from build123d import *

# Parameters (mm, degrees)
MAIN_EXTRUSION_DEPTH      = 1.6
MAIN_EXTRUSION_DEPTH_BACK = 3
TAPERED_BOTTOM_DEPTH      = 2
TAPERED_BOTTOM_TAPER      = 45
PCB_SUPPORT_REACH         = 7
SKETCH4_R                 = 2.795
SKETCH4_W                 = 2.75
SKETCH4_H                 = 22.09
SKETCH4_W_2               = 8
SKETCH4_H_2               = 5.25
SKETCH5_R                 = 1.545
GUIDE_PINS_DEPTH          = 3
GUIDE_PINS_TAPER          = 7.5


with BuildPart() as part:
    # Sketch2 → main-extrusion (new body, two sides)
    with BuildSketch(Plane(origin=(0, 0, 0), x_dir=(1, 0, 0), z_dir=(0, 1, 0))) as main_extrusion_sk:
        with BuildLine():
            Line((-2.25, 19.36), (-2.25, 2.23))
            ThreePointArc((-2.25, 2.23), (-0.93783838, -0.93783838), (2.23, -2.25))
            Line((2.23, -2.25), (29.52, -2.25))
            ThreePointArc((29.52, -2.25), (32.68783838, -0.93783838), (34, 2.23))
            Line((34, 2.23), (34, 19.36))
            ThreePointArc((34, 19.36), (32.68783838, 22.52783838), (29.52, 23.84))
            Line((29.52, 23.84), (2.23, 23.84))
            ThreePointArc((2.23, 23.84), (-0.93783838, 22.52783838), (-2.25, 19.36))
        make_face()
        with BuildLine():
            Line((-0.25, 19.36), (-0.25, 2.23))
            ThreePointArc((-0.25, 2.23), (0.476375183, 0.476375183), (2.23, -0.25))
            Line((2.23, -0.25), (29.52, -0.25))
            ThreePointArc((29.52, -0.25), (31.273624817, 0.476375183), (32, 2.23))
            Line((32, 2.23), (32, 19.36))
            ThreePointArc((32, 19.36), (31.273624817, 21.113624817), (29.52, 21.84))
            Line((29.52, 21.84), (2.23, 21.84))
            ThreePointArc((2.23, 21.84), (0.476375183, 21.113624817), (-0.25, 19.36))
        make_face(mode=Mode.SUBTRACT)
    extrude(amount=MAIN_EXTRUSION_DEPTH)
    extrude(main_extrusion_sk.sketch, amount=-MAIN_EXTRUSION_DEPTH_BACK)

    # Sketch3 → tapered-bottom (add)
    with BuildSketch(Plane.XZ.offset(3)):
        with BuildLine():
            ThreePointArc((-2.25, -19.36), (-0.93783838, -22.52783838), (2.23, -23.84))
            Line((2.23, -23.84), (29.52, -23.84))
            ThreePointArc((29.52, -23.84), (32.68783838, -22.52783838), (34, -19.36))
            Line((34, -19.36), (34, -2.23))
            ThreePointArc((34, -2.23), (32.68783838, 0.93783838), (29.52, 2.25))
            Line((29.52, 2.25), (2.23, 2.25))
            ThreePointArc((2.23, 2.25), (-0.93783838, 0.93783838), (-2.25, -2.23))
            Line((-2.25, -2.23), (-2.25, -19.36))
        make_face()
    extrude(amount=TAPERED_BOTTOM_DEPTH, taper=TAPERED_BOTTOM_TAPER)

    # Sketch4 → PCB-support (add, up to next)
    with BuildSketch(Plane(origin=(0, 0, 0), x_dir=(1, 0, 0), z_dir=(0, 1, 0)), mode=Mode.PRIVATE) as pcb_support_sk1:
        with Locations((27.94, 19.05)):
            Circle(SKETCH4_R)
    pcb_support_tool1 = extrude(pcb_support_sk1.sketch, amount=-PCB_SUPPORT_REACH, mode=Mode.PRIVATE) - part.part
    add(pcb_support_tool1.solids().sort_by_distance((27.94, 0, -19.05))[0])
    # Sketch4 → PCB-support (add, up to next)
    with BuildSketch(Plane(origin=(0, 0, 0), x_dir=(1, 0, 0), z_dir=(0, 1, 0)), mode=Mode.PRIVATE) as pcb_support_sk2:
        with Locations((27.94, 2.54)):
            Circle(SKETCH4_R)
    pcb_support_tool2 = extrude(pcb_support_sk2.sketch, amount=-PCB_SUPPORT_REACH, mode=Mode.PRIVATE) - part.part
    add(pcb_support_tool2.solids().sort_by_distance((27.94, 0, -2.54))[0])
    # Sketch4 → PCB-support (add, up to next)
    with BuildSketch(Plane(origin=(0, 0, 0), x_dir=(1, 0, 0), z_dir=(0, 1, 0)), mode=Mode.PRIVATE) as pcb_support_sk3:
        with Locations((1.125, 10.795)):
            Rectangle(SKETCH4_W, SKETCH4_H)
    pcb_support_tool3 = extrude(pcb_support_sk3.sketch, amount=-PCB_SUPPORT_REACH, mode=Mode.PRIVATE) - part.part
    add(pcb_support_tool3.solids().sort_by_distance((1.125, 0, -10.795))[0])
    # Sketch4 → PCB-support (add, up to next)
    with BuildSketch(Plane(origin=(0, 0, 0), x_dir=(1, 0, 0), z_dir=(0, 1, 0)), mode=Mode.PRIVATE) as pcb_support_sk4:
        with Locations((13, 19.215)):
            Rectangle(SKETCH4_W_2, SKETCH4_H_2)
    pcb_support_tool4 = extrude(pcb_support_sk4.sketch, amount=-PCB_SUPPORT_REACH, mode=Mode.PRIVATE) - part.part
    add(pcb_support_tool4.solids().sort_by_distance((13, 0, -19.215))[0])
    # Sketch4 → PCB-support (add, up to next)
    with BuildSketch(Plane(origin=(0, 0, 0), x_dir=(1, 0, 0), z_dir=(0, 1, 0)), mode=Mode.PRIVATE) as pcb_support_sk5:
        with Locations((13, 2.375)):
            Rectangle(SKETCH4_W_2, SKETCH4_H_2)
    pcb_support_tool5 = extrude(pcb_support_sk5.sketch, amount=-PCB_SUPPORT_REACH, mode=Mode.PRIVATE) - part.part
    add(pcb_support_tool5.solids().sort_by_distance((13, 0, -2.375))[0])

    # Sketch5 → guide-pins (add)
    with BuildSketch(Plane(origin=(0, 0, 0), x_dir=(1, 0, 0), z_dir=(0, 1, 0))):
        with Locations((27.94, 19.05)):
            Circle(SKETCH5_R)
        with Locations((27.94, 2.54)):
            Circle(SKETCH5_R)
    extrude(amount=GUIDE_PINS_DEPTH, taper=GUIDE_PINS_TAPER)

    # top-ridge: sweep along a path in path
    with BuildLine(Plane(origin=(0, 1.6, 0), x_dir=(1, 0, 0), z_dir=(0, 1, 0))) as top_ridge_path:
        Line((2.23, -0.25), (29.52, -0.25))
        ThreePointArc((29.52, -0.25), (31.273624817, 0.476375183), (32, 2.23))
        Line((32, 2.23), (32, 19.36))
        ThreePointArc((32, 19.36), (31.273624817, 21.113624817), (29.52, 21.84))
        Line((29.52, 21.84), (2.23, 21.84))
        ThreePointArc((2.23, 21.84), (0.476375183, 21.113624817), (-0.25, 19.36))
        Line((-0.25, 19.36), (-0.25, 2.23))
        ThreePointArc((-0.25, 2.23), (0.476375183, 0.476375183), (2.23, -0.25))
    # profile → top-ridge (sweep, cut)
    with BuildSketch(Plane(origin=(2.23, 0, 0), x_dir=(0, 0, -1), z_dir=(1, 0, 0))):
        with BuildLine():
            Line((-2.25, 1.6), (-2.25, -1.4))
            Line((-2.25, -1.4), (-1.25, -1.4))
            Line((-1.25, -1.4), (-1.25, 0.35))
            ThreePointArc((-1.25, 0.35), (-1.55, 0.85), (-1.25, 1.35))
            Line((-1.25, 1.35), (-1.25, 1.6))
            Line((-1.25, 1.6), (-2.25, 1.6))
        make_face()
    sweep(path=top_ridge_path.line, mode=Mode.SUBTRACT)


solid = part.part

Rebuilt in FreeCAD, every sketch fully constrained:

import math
import FreeCAD as App
import Part
import Sketcher
from FreeCAD import Vector
Q = App.Units.Quantity


def add_polygon(sketch, points):
    """Adds a closed chain of lines whose ends are joined by coincident constraints."""
    first, n = sketch.GeometryCount, len(points)
    for a, b in zip(points, points[1:] + points[:1]):
        sketch.addGeometry(Part.LineSegment(App.Vector(*a, 0), App.Vector(*b, 0)), False)
    for i in range(n):
        sketch.addConstraint(Sketcher.Constraint("Coincident", first + i, 2, first + (i + 1) % n, 1))

doc = App.newDocument("Part")
body = doc.addObject("PartDesign::Body", "Body")

# Sketch on XZ plane
sketch1 = body.newObject("Sketcher::SketchObject", "Sketch")
sketch1.AttachmentSupport = (doc.getObject("XZ_Plane"), [""])
sketch1.MapMode = "FlatFace"
sketch1.addGeometry(Part.LineSegment(Vector(-2.2, -19.4, 0), Vector(-2.2, -2.2, 0)), False)
sketch1.addGeometry(Part.ArcOfCircle(Part.Circle(Vector(2.2, -2.2, 0), Vector(0, 0, 1), 4.5), math.radians(90), math.radians(180)), False)
sketch1.addGeometry(Part.LineSegment(Vector(2.2, 2.2, 0), Vector(29.5, 2.2, 0)), False)
sketch1.addGeometry(Part.ArcOfCircle(Part.Circle(Vector(29.5, -2.2, 0), Vector(0, 0, 1), 4.5), math.radians(0), math.radians(90)), False)
sketch1.addGeometry(Part.LineSegment(Vector(34, -2.2, 0), Vector(34, -19.4, 0)), False)
sketch1.addGeometry(Part.ArcOfCircle(Part.Circle(Vector(29.5, -19.4, 0), Vector(0, 0, 1), 4.5), math.radians(-90), math.radians(0)), False)
sketch1.addGeometry(Part.LineSegment(Vector(29.5, -23.8, 0), Vector(2.2, -23.8, 0)), False)
sketch1.addGeometry(Part.ArcOfCircle(Part.Circle(Vector(2.2, -19.4, 0), Vector(0, 0, 1), 4.5), math.radians(180), math.radians(270)), False)
sketch1.addGeometry(Part.LineSegment(Vector(-0.2, -2.2, 0), Vector(-0.2, -19.4, 0)), False)
sketch1.addGeometry(Part.ArcOfCircle(Part.Circle(Vector(2.2, -19.4, 0), Vector(0, 0, 1), 2.5), math.radians(-180), math.radians(-90)), False)
sketch1.addGeometry(Part.LineSegment(Vector(2.2, -21.8, 0), Vector(29.5, -21.8, 0)), False)
sketch1.addGeometry(Part.ArcOfCircle(Part.Circle(Vector(29.5, -19.4, 0), Vector(0, 0, 1), 2.5), math.radians(-90), math.radians(0)), False)
sketch1.addGeometry(Part.LineSegment(Vector(32, -19.4, 0), Vector(32, -2.2, 0)), False)
sketch1.addGeometry(Part.ArcOfCircle(Part.Circle(Vector(29.5, -2.2, 0), Vector(0, 0, 1), 2.5), math.radians(0), math.radians(90)), False)
sketch1.addGeometry(Part.LineSegment(Vector(29.5, 0.2, 0), Vector(2.2, 0.2, 0)), False)
sketch1.addGeometry(Part.ArcOfCircle(Part.Circle(Vector(2.2, -2.2, 0), Vector(0, 0, 1), 2.5), math.radians(90), math.radians(180)), False)
sketch1.addConstraint(Sketcher.Constraint("Tangent", 0, 2, 1, 2))
sketch1.addConstraint(Sketcher.Constraint("Tangent", 1, 1, 2, 1))
sketch1.addConstraint(Sketcher.Constraint("Tangent", 2, 2, 3, 2))
sketch1.addConstraint(Sketcher.Constraint("Tangent", 3, 1, 4, 1))
sketch1.addConstraint(Sketcher.Constraint("Tangent", 4, 2, 5, 2))
sketch1.addConstraint(Sketcher.Constraint("Tangent", 5, 1, 6, 1))
sketch1.addConstraint(Sketcher.Constraint("Tangent", 6, 2, 7, 2))
sketch1.addConstraint(Sketcher.Constraint("Tangent", 7, 1, 0, 1))
sketch1.addConstraint(Sketcher.Constraint("Tangent", 8, 2, 9, 1))
sketch1.addConstraint(Sketcher.Constraint("Tangent", 9, 2, 10, 1))
sketch1.addConstraint(Sketcher.Constraint("Tangent", 10, 2, 11, 1))
sketch1.addConstraint(Sketcher.Constraint("Tangent", 11, 2, 12, 1))
sketch1.addConstraint(Sketcher.Constraint("Tangent", 12, 2, 13, 1))
sketch1.addConstraint(Sketcher.Constraint("Tangent", 13, 2, 14, 1))
sketch1.addConstraint(Sketcher.Constraint("Tangent", 14, 2, 15, 1))
sketch1.addConstraint(Sketcher.Constraint("Tangent", 15, 2, 8, 1))
sketch1.addConstraint(Sketcher.Constraint("Vertical", 0))
sketch1.addConstraint(Sketcher.Constraint("Horizontal", 2))
sketch1.addConstraint(Sketcher.Constraint("Vertical", 4))
sketch1.addConstraint(Sketcher.Constraint("Horizontal", 6))
sketch1.addConstraint(Sketcher.Constraint("Vertical", 8))
sketch1.addConstraint(Sketcher.Constraint("Horizontal", 10))
sketch1.addConstraint(Sketcher.Constraint("Vertical", 12))
sketch1.addConstraint(Sketcher.Constraint("Horizontal", 14))
sketch1.addConstraint(Sketcher.Constraint("Coincident", 9, 3, 7, 3))
sketch1.addConstraint(Sketcher.Constraint("Coincident", 11, 3, 5, 3))
sketch1.addConstraint(Sketcher.Constraint("Coincident", 13, 3, 3, 3))
sketch1.addConstraint(Sketcher.Constraint("Equal", 1, 3))
sketch1.addConstraint(Sketcher.Constraint("Equal", 3, 5))
sketch1.addConstraint(Sketcher.Constraint("Equal", 5, 7))
sketch1.addConstraint(Sketcher.Constraint("Equal", 13, 15))
sketch1.addConstraint(Sketcher.Constraint("Radius", 1, Q("4.48 mm")))
sketch1.addConstraint(Sketcher.Constraint("Radius", 9, Q("2.48 mm")))
sketch1.addConstraint(Sketcher.Constraint("DistanceX", -1, 1, 3, 1, Q("34 mm")))
sketch1.addConstraint(Sketcher.Constraint("DistanceX", 2, 1, 2, 2, Q("27.29 mm")))
sketch1.addConstraint(Sketcher.Constraint("DistanceY", 0, 1, 0, 2, Q("17.13 mm")))
sketch1.addConstraint(Sketcher.Constraint("DistanceY", 1, 3, -1, 1, Q("2.23 mm")))
pad1 = body.newObject("PartDesign::Pad", "Pad")
pad1.Profile = sketch1
pad1.Type = "TwoLengths"
pad1.Length = 1.6
pad1.Length2 = 3
pad1.Reversed = True

# Sketch on XZ plane
sketch2 = body.newObject("Sketcher::SketchObject", "Sketch001")
sketch2.AttachmentSupport = (doc.getObject("XZ_Plane"), [""])
sketch2.MapMode = "FlatFace"
sketch2.AttachmentOffset = App.Placement(Vector(0, 0, 3), App.Rotation())
sketch2.addGeometry(Part.ArcOfCircle(Part.Circle(Vector(2.2, -19.4, 0), Vector(0, 0, 1), 4.5), math.radians(180), math.radians(270)), False)
sketch2.addGeometry(Part.LineSegment(Vector(2.2, -23.8, 0), Vector(29.5, -23.8, 0)), False)
sketch2.addGeometry(Part.ArcOfCircle(Part.Circle(Vector(29.5, -19.4, 0), Vector(0, 0, 1), 4.5), math.radians(-90), math.radians(0)), False)
sketch2.addGeometry(Part.LineSegment(Vector(34, -19.4, 0), Vector(34, -2.2, 0)), False)
sketch2.addGeometry(Part.ArcOfCircle(Part.Circle(Vector(29.5, -2.2, 0), Vector(0, 0, 1), 4.5), math.radians(0), math.radians(90)), False)
sketch2.addGeometry(Part.LineSegment(Vector(29.5, 2.2, 0), Vector(2.2, 2.2, 0)), False)
sketch2.addGeometry(Part.ArcOfCircle(Part.Circle(Vector(2.2, -2.2, 0), Vector(0, 0, 1), 4.5), math.radians(90), math.radians(180)), False)
sketch2.addGeometry(Part.LineSegment(Vector(-2.2, -2.2, 0), Vector(-2.2, -19.4, 0)), False)
sketch2.addConstraint(Sketcher.Constraint("Tangent", 0, 2, 1, 1))
sketch2.addConstraint(Sketcher.Constraint("Tangent", 1, 2, 2, 1))
sketch2.addConstraint(Sketcher.Constraint("Tangent", 2, 2, 3, 1))
sketch2.addConstraint(Sketcher.Constraint("Tangent", 3, 2, 4, 1))
sketch2.addConstraint(Sketcher.Constraint("Tangent", 4, 2, 5, 1))
sketch2.addConstraint(Sketcher.Constraint("Tangent", 5, 2, 6, 1))
sketch2.addConstraint(Sketcher.Constraint("Tangent", 6, 2, 7, 1))
sketch2.addConstraint(Sketcher.Constraint("Tangent", 7, 2, 0, 1))
sketch2.addConstraint(Sketcher.Constraint("Horizontal", 1))
sketch2.addConstraint(Sketcher.Constraint("Vertical", 3))
sketch2.addConstraint(Sketcher.Constraint("Horizontal", 5))
sketch2.addConstraint(Sketcher.Constraint("Vertical", 7))
sketch2.addConstraint(Sketcher.Constraint("Equal", 0, 2))
sketch2.addConstraint(Sketcher.Constraint("Equal", 2, 4))
sketch2.addConstraint(Sketcher.Constraint("Equal", 4, 6))
sketch2.addConstraint(Sketcher.Constraint("Radius", 0, Q("4.48 mm")))
sketch2.addConstraint(Sketcher.Constraint("DistanceX", -1, 1, 2, 2, Q("34 mm")))
sketch2.addConstraint(Sketcher.Constraint("DistanceX", 1, 1, 1, 2, Q("27.29 mm")))
sketch2.addConstraint(Sketcher.Constraint("DistanceY", 3, 1, 3, 2, Q("17.13 mm")))
sketch2.addConstraint(Sketcher.Constraint("DistanceY", 0, 3, -1, 1, Q("19.36 mm")))
pad2 = body.newObject("PartDesign::Pad", "Pad001")
pad2.Profile = sketch2
pad2.Length = 2
pad2.TaperAngle = -45

# Sketch on XZ plane
sketch3 = body.newObject("Sketcher::SketchObject", "Sketch002")
sketch3.AttachmentSupport = (doc.getObject("XZ_Plane"), [""])
sketch3.MapMode = "FlatFace"
sketch3.addGeometry(Part.Circle(Vector(27.9, -19.1, 0), Vector(0, 0, 1), 2.8), False)
sketch3.addConstraint(Sketcher.Constraint("Diameter", 0, Q("5.59 mm")))
sketch3.addConstraint(Sketcher.Constraint("DistanceX", -1, 1, 0, 3, Q("27.94 mm")))
sketch3.addConstraint(Sketcher.Constraint("DistanceY", 0, 3, -1, 1, Q("19.05 mm")))
pad3 = body.newObject("PartDesign::Pad", "Pad002")
pad3.Profile = sketch3
pad3.Type = "UpToFirst"

# Sketch on XZ plane
sketch4 = body.newObject("Sketcher::SketchObject", "Sketch003")
sketch4.AttachmentSupport = (doc.getObject("XZ_Plane"), [""])
sketch4.MapMode = "FlatFace"
sketch4.addGeometry(Part.Circle(Vector(27.9, -2.5, 0), Vector(0, 0, 1), 2.8), False)
sketch4.addConstraint(Sketcher.Constraint("Diameter", 0, Q("5.59 mm")))
sketch4.addConstraint(Sketcher.Constraint("DistanceX", -1, 1, 0, 3, Q("27.94 mm")))
sketch4.addConstraint(Sketcher.Constraint("DistanceY", 0, 3, -1, 1, Q("2.54 mm")))
pad4 = body.newObject("PartDesign::Pad", "Pad003")
pad4.Profile = sketch4
pad4.Type = "UpToFirst"

# Sketch on XZ plane
sketch5 = body.newObject("Sketcher::SketchObject", "Sketch004")
sketch5.AttachmentSupport = (doc.getObject("XZ_Plane"), [""])
sketch5.MapMode = "FlatFace"
add_polygon(sketch5, [(-0.2, -21.8), (-0.2, 0.2), (2.5, 0.2), (2.5, -21.8)])  # lines 0-3
sketch5.addConstraint(Sketcher.Constraint("Vertical", 0))
sketch5.addConstraint(Sketcher.Constraint("Horizontal", 1))
sketch5.addConstraint(Sketcher.Constraint("Vertical", 2))
sketch5.addConstraint(Sketcher.Constraint("Horizontal", 3))
sketch5.addConstraint(Sketcher.Constraint("DistanceX", 1, 1, 1, 2, Q("2.75 mm")))
sketch5.addConstraint(Sketcher.Constraint("DistanceY", 0, 1, 0, 2, Q("22.09 mm")))
sketch5.addConstraint(Sketcher.Constraint("DistanceX", -1, 1, 1, 2, Q("2.5 mm")))
sketch5.addConstraint(Sketcher.Constraint("DistanceY", -1, 1, 0, 2, Q("0.25 mm")))
pad5 = body.newObject("PartDesign::Pad", "Pad004")
pad5.Profile = sketch5
pad5.Type = "UpToFirst"

# Sketch on XZ plane
sketch6 = body.newObject("Sketcher::SketchObject", "Sketch005")
sketch6.AttachmentSupport = (doc.getObject("XZ_Plane"), [""])
sketch6.MapMode = "FlatFace"
add_polygon(sketch6, [(9, -22), (9, -17), (17, -17), (17, -22)])  # lines 0-3
sketch6.addConstraint(Sketcher.Constraint("Vertical", 0))
sketch6.addConstraint(Sketcher.Constraint("Horizontal", 1))
sketch6.addConstraint(Sketcher.Constraint("Vertical", 2))
sketch6.addConstraint(Sketcher.Constraint("Horizontal", 3))
sketch6.addConstraint(Sketcher.Constraint("DistanceX", 1, 1, 1, 2, Q("8 mm")))
sketch6.addConstraint(Sketcher.Constraint("DistanceX", -1, 1, 0, 2, Q("9 mm")))
sketch6.addConstraint(Sketcher.Constraint("DistanceY", 0, 1, 0, 2, Q("5.25 mm")))
sketch6.addConstraint(Sketcher.Constraint("DistanceY", 0, 2, -1, 1, Q("16.59 mm")))
pad6 = body.newObject("PartDesign::Pad", "Pad005")
pad6.Profile = sketch6
pad6.Type = "UpToFirst"

# Sketch on XZ plane
sketch7 = body.newObject("Sketcher::SketchObject", "Sketch006")
sketch7.AttachmentSupport = (doc.getObject("XZ_Plane"), [""])
sketch7.MapMode = "FlatFace"
add_polygon(sketch7, [(9, -5), (9, 0), (17, 0), (17, -5)])  # lines 0-3
sketch7.addConstraint(Sketcher.Constraint("Vertical", 0))
sketch7.addConstraint(Sketcher.Constraint("Horizontal", 1))
sketch7.addConstraint(Sketcher.Constraint("Vertical", 2))
sketch7.addConstraint(Sketcher.Constraint("Horizontal", 3))
sketch7.addConstraint(Sketcher.Constraint("DistanceX", 1, 1, 1, 2, Q("8 mm")))
sketch7.addConstraint(Sketcher.Constraint("DistanceX", -1, 1, 0, 2, Q("9 mm")))
sketch7.addConstraint(Sketcher.Constraint("DistanceY", 2, 2, -1, 1, Q("5 mm")))
sketch7.addConstraint(Sketcher.Constraint("DistanceY", 0, 1, 0, 2, Q("5.25 mm")))
pad7 = body.newObject("PartDesign::Pad", "Pad006")
pad7.Profile = sketch7
pad7.Type = "UpToFirst"

# Sketch on XZ plane
sketch8 = body.newObject("Sketcher::SketchObject", "Sketch007")
sketch8.AttachmentSupport = (doc.getObject("XZ_Plane"), [""])
sketch8.MapMode = "FlatFace"
sketch8.addGeometry(Part.Circle(Vector(27.9, -19.1, 0), Vector(0, 0, 1), 1.5), False)
sketch8.addGeometry(Part.Circle(Vector(27.9, -2.5, 0), Vector(0, 0, 1), 1.5), False)
sketch8.addConstraint(Sketcher.Constraint("Equal", 0, 1))
sketch8.addConstraint(Sketcher.Constraint("Vertical", 0, 3, 1, 3))
sketch8.addConstraint(Sketcher.Constraint("Diameter", 0, Q("3.09 mm")))
sketch8.addConstraint(Sketcher.Constraint("DistanceX", -1, 1, 0, 3, Q("27.94 mm")))
sketch8.addConstraint(Sketcher.Constraint("DistanceY", 0, 3, -1, 1, Q("19.05 mm")))
sketch8.addConstraint(Sketcher.Constraint("DistanceY", 1, 3, -1, 1, Q("2.54 mm")))
pad8 = body.newObject("PartDesign::Pad", "Pad007")
pad8.Profile = sketch8
pad8.Length = 3
pad8.Reversed = True
pad8.TaperAngle = -7.5

# Sketch on YZ plane
sketch9 = body.newObject("Sketcher::SketchObject", "Sketch008")
sketch9.AttachmentSupport = (doc.getObject("YZ_Plane"), [""])
sketch9.MapMode = "FlatFace"
sketch9.AttachmentOffset = App.Placement(Vector(0, 0, 2.23), App.Rotation())
sketch9.addGeometry(Part.LineSegment(Vector(1.6, 2.25, 0), Vector(-1.4, 2.25, 0)), False)
sketch9.addGeometry(Part.LineSegment(Vector(-1.4, 2.25, 0), Vector(-1.4, 1.25, 0)), False)
sketch9.addGeometry(Part.LineSegment(Vector(-1.4, 1.25, 0), Vector(0.35, 1.25, 0)), False)
sketch9.addGeometry(Part.ArcOfCircle(Part.Circle(Vector(0.85, 0.98, 0), Vector(0, 0, 1), 0.57), math.radians(28), math.radians(152)), False)
sketch9.addGeometry(Part.LineSegment(Vector(1.35, 1.25, 0), Vector(1.6, 1.25, 0)), False)
sketch9.addGeometry(Part.LineSegment(Vector(1.6, 1.25, 0), Vector(1.6, 2.25, 0)), False)
sketch9.addConstraint(Sketcher.Constraint("Coincident", 0, 2, 1, 1))
sketch9.addConstraint(Sketcher.Constraint("Coincident", 1, 2, 2, 1))
sketch9.addConstraint(Sketcher.Constraint("Coincident", 2, 2, 3, 2))
sketch9.addConstraint(Sketcher.Constraint("Coincident", 3, 1, 4, 1))
sketch9.addConstraint(Sketcher.Constraint("Coincident", 4, 2, 5, 1))
sketch9.addConstraint(Sketcher.Constraint("Coincident", 5, 2, 0, 1))
sketch9.addConstraint(Sketcher.Constraint("Horizontal", 0))
sketch9.addConstraint(Sketcher.Constraint("Vertical", 1))
sketch9.addConstraint(Sketcher.Constraint("Horizontal", 2))
sketch9.addConstraint(Sketcher.Constraint("Horizontal", 4))
sketch9.addConstraint(Sketcher.Constraint("Vertical", 5))
sketch9.addConstraint(Sketcher.Constraint("Horizontal", 2, 2, 3, 1))
sketch9.addConstraint(Sketcher.Constraint("DistanceX", 0, 2, 0, 1, Q("3 mm")))
sketch9.addConstraint(Sketcher.Constraint("DistanceY", 1, 2, 1, 1, Q("1 mm")))
sketch9.addConstraint(Sketcher.Constraint("DistanceX", 2, 2, 3, 1, Q("1 mm")))
sketch9.addConstraint(Sketcher.Constraint("DistanceX", 2, 1, 2, 2, Q("1.75 mm")))
sketch9.addConstraint(Sketcher.Constraint("DistanceX", 0, 2, -1, 1, Q("1.4 mm")))
sketch9.addConstraint(Sketcher.Constraint("DistanceY", -1, 1, 0, 2, Q("2.25 mm")))
sketch9.addConstraint(Sketcher.Constraint("Radius", 3, Q("0.566667 mm")))

# Sketch on XZ plane
sketch10 = body.newObject("Sketcher::SketchObject", "Sketch009")
sketch10.AttachmentSupport = (doc.getObject("XZ_Plane"), [""])
sketch10.MapMode = "FlatFace"
sketch10.AttachmentOffset = App.Placement(Vector(0, 0, -1.6), App.Rotation())
sketch10.addGeometry(Part.LineSegment(Vector(2.2, 0.2, 0), Vector(29.5, 0.2, 0)), False)
sketch10.addGeometry(Part.ArcOfCircle(Part.Circle(Vector(29.5, -2.2, 0), Vector(0, 0, 1), 2.5), math.radians(0), math.radians(90)), False)
sketch10.addGeometry(Part.LineSegment(Vector(32, -2.2, 0), Vector(32, -19.4, 0)), False)
sketch10.addGeometry(Part.ArcOfCircle(Part.Circle(Vector(29.5, -19.4, 0), Vector(0, 0, 1), 2.5), math.radians(-90), math.radians(0)), False)
sketch10.addGeometry(Part.LineSegment(Vector(29.5, -21.8, 0), Vector(2.2, -21.8, 0)), False)
sketch10.addGeometry(Part.ArcOfCircle(Part.Circle(Vector(2.2, -19.4, 0), Vector(0, 0, 1), 2.5), math.radians(-180), math.radians(-90)), False)
sketch10.addGeometry(Part.LineSegment(Vector(-0.2, -19.4, 0), Vector(-0.2, -2.2, 0)), False)
sketch10.addGeometry(Part.ArcOfCircle(Part.Circle(Vector(2.2, -2.2, 0), Vector(0, 0, 1), 2.5), math.radians(90), math.radians(180)), False)
sketch10.addConstraint(Sketcher.Constraint("Tangent", 0, 2, 1, 2))
sketch10.addConstraint(Sketcher.Constraint("Tangent", 1, 1, 2, 1))
sketch10.addConstraint(Sketcher.Constraint("Tangent", 2, 2, 3, 2))
sketch10.addConstraint(Sketcher.Constraint("Tangent", 3, 1, 4, 1))
sketch10.addConstraint(Sketcher.Constraint("Tangent", 4, 2, 5, 2))
sketch10.addConstraint(Sketcher.Constraint("Tangent", 5, 1, 6, 1))
sketch10.addConstraint(Sketcher.Constraint("Tangent", 6, 2, 7, 2))
sketch10.addConstraint(Sketcher.Constraint("Tangent", 7, 1, 0, 1))
sketch10.addConstraint(Sketcher.Constraint("Horizontal", 0))
sketch10.addConstraint(Sketcher.Constraint("Vertical", 2))
sketch10.addConstraint(Sketcher.Constraint("Horizontal", 4))
sketch10.addConstraint(Sketcher.Constraint("Vertical", 6))
sketch10.addConstraint(Sketcher.Constraint("Equal", 1, 3))
sketch10.addConstraint(Sketcher.Constraint("Equal", 3, 5))
sketch10.addConstraint(Sketcher.Constraint("Equal", 5, 7))
sketch10.addConstraint(Sketcher.Constraint("Radius", 1, Q("2.48 mm")))
sketch10.addConstraint(Sketcher.Constraint("DistanceX", -1, 1, 1, 1, Q("32 mm")))
sketch10.addConstraint(Sketcher.Constraint("DistanceX", 0, 1, 0, 2, Q("27.29 mm")))
sketch10.addConstraint(Sketcher.Constraint("DistanceY", 2, 2, 2, 1, Q("17.13 mm")))
sketch10.addConstraint(Sketcher.Constraint("DistanceY", 1, 3, -1, 1, Q("2.23 mm")))
doc.recompute()

subtractivepipe = body.newObject("PartDesign::SubtractivePipe", "SubtractivePipe")
subtractivepipe.Profile = sketch9
subtractivepipe.Spine = (sketch10, ["Edge1", "Edge2", "Edge3", "Edge4", "Edge5", "Edge6", "Edge7", "Edge8"])

doc.recompute()
